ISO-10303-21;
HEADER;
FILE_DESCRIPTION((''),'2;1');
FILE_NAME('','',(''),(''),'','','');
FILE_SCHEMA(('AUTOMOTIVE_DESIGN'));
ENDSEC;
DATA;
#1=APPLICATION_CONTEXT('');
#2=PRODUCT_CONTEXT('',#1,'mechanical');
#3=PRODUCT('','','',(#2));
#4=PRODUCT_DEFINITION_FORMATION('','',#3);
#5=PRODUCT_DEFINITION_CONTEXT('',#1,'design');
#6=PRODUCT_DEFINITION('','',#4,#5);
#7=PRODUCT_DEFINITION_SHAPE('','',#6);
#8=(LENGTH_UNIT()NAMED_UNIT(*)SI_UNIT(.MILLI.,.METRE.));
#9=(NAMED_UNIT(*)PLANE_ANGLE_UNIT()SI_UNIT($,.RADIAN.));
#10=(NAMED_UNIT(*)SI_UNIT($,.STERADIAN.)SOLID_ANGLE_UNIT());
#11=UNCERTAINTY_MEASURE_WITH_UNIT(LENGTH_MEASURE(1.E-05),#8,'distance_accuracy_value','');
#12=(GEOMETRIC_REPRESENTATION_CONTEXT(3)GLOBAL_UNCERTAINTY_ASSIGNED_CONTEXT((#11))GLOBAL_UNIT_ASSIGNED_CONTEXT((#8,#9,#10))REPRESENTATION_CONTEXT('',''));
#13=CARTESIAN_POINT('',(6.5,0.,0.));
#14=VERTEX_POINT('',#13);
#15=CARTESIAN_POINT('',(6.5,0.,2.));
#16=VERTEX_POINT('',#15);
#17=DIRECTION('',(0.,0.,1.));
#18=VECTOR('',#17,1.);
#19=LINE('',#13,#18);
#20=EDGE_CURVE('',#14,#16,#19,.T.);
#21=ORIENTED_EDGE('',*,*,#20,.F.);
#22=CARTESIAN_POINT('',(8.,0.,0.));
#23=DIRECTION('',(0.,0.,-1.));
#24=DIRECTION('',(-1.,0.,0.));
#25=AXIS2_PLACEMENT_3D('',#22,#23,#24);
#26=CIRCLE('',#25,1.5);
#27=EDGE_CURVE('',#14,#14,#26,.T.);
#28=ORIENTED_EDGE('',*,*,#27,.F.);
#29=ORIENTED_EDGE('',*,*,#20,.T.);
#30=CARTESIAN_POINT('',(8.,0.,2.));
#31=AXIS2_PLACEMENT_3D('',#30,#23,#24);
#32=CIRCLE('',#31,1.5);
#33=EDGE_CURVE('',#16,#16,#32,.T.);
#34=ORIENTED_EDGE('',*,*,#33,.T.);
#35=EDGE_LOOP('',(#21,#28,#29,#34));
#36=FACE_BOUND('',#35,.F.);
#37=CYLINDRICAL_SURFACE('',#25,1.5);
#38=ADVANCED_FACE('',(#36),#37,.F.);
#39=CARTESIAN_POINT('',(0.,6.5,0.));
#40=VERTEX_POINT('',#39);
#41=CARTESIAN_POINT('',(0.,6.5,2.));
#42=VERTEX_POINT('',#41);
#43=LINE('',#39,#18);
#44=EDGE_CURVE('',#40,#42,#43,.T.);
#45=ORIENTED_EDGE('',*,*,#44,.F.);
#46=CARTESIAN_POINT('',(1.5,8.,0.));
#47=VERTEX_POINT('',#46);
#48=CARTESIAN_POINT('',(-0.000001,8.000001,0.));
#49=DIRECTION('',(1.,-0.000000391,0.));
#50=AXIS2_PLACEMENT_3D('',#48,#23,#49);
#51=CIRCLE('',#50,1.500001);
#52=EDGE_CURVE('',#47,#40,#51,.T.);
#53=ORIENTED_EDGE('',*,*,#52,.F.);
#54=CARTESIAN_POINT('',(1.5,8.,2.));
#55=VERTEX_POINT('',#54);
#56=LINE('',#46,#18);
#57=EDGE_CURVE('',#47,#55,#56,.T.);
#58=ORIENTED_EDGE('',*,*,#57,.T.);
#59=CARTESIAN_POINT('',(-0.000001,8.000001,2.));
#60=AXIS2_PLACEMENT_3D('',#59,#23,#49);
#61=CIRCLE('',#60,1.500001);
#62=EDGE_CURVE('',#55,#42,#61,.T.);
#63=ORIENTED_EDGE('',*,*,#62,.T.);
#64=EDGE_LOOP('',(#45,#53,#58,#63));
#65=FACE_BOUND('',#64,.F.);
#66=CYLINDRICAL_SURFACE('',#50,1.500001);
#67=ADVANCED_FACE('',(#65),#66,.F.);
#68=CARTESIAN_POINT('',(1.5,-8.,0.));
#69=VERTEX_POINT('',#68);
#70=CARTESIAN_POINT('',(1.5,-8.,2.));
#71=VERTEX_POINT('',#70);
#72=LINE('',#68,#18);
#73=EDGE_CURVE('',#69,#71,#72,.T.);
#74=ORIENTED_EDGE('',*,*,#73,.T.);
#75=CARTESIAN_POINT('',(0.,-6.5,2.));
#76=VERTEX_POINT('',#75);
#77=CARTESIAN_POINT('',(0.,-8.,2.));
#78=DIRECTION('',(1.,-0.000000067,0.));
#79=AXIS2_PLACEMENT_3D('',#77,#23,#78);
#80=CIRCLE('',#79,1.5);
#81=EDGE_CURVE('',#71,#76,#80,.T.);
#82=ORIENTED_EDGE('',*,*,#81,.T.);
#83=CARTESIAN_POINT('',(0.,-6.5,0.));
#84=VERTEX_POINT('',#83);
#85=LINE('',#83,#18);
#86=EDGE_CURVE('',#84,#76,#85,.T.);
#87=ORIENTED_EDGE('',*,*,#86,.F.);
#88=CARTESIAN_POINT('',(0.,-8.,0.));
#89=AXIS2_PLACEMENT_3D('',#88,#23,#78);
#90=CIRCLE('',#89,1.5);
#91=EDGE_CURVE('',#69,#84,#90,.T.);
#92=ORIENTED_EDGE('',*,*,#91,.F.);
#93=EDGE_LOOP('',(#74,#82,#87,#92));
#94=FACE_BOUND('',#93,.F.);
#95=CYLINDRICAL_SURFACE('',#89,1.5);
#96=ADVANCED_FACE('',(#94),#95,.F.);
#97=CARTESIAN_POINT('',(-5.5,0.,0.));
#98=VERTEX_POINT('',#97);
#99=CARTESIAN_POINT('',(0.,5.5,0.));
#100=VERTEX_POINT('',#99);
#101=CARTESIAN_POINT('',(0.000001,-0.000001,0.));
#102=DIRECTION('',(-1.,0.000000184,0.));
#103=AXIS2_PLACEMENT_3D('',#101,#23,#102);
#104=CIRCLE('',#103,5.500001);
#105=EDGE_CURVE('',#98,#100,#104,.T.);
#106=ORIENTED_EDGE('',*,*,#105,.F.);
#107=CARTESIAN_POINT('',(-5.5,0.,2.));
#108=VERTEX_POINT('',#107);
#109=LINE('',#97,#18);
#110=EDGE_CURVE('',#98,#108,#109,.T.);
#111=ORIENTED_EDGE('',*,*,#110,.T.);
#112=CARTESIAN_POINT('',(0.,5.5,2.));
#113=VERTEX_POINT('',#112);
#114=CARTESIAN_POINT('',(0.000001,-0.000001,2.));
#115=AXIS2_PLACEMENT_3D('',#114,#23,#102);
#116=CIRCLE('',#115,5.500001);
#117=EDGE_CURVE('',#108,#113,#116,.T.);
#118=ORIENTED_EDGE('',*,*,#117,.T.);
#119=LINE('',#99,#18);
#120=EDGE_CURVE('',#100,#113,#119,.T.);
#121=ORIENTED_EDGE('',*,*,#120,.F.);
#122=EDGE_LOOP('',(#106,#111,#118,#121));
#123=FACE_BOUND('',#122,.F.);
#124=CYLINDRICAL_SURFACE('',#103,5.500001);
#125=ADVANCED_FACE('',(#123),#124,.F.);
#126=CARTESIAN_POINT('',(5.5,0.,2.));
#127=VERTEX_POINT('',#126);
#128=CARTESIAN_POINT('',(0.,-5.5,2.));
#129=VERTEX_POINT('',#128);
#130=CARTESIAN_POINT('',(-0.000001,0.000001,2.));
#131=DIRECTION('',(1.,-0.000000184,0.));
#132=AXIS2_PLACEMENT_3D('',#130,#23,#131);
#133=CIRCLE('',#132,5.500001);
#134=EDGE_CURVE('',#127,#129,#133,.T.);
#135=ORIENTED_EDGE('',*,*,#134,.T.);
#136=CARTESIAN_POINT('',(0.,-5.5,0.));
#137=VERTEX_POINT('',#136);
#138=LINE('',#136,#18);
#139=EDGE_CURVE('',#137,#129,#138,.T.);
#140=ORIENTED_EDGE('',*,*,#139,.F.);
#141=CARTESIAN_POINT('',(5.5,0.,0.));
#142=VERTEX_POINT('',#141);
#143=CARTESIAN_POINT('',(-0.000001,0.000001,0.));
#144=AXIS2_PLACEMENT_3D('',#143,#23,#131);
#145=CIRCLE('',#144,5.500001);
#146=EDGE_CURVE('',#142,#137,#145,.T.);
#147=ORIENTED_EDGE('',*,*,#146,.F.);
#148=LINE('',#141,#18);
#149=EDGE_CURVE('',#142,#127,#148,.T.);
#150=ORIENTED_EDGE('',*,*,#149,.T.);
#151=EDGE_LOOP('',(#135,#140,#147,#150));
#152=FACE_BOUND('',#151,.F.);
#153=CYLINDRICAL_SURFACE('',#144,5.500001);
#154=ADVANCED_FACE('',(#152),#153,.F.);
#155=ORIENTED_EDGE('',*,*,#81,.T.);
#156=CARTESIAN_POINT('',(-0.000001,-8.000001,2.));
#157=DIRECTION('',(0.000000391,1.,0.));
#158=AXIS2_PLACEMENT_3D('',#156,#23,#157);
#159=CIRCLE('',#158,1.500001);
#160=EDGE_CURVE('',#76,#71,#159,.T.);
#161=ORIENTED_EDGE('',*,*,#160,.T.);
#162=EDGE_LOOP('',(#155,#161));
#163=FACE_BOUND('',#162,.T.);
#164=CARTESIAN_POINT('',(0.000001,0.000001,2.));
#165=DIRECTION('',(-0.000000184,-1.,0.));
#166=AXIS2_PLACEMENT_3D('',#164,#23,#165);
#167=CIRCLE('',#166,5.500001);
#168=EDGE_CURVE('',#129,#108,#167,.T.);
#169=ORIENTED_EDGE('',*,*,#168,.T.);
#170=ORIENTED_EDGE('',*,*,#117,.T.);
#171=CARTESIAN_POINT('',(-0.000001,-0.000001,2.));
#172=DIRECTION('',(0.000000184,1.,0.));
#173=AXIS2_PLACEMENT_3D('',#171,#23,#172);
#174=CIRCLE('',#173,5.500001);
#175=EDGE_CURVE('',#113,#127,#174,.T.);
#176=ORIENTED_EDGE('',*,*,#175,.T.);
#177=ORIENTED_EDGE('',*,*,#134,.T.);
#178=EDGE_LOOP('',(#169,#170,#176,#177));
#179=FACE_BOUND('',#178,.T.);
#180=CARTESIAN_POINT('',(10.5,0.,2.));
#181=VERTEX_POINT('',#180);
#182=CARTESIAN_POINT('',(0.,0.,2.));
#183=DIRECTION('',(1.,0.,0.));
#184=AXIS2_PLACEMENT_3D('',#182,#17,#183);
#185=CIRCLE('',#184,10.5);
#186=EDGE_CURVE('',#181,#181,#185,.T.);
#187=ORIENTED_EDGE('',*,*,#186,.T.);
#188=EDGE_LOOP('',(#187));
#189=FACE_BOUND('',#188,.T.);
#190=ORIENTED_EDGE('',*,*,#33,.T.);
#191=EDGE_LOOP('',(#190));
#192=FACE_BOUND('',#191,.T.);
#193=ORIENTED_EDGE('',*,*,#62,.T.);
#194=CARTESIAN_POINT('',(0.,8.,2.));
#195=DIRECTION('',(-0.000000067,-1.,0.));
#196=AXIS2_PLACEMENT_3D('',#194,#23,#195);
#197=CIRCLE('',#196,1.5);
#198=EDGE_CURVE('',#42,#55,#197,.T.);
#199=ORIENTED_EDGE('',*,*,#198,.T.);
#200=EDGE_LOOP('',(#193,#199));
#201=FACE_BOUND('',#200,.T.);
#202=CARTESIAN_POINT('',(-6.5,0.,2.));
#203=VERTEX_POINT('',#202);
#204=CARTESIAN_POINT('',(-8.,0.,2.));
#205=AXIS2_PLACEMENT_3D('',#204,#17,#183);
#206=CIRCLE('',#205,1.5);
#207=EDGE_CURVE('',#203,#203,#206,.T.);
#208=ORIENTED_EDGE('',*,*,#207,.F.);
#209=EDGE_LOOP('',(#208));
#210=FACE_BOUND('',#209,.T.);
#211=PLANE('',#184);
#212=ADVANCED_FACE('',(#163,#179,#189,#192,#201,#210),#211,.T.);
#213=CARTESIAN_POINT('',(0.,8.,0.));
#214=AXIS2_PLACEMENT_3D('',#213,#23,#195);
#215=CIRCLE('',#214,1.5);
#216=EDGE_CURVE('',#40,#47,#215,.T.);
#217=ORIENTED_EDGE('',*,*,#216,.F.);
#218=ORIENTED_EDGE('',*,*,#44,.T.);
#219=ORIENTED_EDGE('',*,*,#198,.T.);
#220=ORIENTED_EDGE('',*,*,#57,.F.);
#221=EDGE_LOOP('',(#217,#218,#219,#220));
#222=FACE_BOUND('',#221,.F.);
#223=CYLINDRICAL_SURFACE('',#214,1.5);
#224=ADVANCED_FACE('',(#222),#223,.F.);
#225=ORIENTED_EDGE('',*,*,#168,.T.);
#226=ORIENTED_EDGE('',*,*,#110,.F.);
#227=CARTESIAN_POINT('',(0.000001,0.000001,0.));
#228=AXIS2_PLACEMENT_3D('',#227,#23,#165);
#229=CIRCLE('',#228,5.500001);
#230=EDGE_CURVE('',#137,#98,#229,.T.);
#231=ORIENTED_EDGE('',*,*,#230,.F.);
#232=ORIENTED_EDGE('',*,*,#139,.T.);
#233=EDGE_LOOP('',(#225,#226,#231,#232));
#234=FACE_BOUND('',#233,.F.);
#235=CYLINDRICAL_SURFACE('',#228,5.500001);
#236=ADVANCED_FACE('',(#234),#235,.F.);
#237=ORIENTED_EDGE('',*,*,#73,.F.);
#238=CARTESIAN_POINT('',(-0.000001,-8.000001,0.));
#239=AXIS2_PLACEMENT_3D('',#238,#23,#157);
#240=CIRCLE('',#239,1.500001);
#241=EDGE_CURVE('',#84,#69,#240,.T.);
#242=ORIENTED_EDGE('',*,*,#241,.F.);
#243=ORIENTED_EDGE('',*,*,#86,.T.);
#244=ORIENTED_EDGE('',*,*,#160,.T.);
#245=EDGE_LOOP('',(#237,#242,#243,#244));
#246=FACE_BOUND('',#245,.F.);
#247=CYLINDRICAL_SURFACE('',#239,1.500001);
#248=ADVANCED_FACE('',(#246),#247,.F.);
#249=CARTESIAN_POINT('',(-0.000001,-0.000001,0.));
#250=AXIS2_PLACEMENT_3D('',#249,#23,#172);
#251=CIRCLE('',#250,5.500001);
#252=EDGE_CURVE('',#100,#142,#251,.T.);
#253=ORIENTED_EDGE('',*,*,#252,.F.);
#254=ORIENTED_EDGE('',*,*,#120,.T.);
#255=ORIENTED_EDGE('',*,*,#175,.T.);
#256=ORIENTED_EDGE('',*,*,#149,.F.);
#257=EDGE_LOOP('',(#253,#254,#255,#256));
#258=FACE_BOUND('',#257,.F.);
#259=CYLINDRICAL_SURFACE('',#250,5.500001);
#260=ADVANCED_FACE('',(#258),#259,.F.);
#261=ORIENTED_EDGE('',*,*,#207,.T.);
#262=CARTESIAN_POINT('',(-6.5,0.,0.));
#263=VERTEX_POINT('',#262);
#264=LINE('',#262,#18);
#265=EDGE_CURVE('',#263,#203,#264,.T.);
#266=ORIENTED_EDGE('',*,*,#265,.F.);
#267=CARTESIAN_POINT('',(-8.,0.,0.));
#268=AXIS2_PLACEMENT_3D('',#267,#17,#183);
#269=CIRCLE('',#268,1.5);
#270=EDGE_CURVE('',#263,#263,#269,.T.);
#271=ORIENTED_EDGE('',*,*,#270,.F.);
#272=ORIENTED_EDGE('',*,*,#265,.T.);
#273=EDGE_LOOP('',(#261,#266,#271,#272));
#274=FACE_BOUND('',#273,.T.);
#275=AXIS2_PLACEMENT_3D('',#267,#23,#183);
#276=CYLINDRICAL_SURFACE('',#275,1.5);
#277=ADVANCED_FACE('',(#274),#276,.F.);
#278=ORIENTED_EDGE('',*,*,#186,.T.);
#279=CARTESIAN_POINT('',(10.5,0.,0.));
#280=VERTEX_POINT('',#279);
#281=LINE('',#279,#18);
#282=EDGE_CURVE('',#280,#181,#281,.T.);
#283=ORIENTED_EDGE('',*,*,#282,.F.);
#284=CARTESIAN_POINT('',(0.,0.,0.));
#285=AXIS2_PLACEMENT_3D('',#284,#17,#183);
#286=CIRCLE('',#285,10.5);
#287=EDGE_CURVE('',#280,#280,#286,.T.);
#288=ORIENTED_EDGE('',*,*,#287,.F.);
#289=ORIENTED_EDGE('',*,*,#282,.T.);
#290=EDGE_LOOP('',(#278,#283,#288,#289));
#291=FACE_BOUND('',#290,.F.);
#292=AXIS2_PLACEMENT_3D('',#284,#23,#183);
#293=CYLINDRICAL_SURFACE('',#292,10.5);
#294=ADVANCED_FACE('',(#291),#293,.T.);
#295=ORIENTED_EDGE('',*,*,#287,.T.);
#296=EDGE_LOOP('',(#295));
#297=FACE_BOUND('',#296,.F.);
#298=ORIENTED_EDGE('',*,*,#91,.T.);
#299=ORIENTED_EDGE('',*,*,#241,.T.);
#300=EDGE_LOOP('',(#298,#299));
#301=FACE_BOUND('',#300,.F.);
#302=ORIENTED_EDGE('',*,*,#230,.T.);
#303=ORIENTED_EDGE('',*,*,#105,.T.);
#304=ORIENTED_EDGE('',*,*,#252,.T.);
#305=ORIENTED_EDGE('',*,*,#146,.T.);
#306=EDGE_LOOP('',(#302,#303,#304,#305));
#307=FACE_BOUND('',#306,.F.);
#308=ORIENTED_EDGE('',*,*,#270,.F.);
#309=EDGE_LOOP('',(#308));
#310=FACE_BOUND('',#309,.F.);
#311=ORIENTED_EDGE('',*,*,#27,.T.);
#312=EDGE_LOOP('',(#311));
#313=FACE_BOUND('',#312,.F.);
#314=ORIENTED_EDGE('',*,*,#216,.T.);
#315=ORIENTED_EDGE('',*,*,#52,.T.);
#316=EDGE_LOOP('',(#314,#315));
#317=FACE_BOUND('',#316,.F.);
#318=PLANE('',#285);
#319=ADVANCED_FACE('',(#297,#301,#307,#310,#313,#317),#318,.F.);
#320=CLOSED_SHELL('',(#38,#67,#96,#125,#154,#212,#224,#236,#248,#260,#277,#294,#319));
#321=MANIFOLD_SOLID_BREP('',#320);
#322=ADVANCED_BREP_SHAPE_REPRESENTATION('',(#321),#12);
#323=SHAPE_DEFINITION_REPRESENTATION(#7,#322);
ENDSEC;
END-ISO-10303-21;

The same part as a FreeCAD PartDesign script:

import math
import FreeCAD as App
import Part
import Sketcher
from FreeCAD import Vector
Q = App.Units.Quantity

doc = App.newDocument("Part")
body = doc.addObject("PartDesign::Body", "Body")

# Sketch on XY plane
sketch1 = body.newObject("Sketcher::SketchObject", "Sketch")
sketch1.AttachmentSupport = (doc.getObject("XY_Plane"), [""])
sketch1.MapMode = "FlatFace"
sketch1.addGeometry([
    Part.Circle(Vector(0, 0, 0), Vector(0, 0, 1), 10.5),  # 0
    Part.ArcOfCircle(Part.Circle(Vector(0, -8, 0), Vector(0, 0, 1), 1.5), math.radians(0), math.radians(90)),  # 1
    Part.ArcOfCircle(Part.Circle(Vector(0, -8, 0), Vector(0, 0, 1), 1.5), math.radians(90), math.radians(360)),  # 2
    Part.Circle(Vector(-8, 0, 0), Vector(0, 0, 1), 1.5),  # 3
    Part.ArcOfCircle(Part.Circle(Vector(0, 0, 0), Vector(0, 0, 1), 5.5), math.radians(90), math.radians(180)),  # 4
    Part.ArcOfCircle(Part.Circle(Vector(0, 0, 0), Vector(0, 0, 1), 5.5), math.radians(0), math.radians(90)),  # 5
    Part.ArcOfCircle(Part.Circle(Vector(0, 0, 0), Vector(0, 0, 1), 5.5), math.radians(-90), math.radians(0)),  # 6
    Part.ArcOfCircle(Part.Circle(Vector(0, 0, 0), Vector(0, 0, 1), 5.5), math.radians(-180), math.radians(-90)),  # 7
    Part.Circle(Vector(8, 0, 0), Vector(0, 0, 1), 1.5),  # 8
    Part.ArcOfCircle(Part.Circle(Vector(0, 8, 0), Vector(0, 0, 1), 1.5), math.radians(0), math.radians(270)),  # 9
    Part.ArcOfCircle(Part.Circle(Vector(0, 8, 0), Vector(0, 0, 1), 1.5), math.radians(-90), math.radians(0)),  # 10
], False)
sketch1.addConstraint([
    Sketcher.Constraint("Tangent", 1, 1, 2, 2),
    Sketcher.Constraint("Coincident", 2, 1, 1, 2),
    Sketcher.Constraint("Tangent", 4, 1, 5, 2),
    Sketcher.Constraint("Tangent", 5, 1, 6, 2),
    Sketcher.Constraint("Tangent", 6, 1, 7, 2),
    Sketcher.Constraint("Tangent", 7, 1, 4, 2),
    Sketcher.Constraint("Tangent", 9, 1, 10, 2),
    Sketcher.Constraint("Coincident", 10, 1, 9, 2),
    Sketcher.Constraint("Coincident", 0, 3, -1, 1),
    Sketcher.Constraint("Coincident", 4, 3, -1, 1),
    Sketcher.Constraint("Equal", 2, 3),
    Sketcher.Constraint("Equal", 4, 5),
    Sketcher.Constraint("Equal", 3, 8),
    Sketcher.Constraint("Equal", 8, 9),
    Sketcher.Constraint("Symmetric", 3, 3, 8, 3, -1, 1),
    Sketcher.Constraint("Symmetric", 1, 3, 9, 3, -1, 1),
    Sketcher.Constraint("Symmetric", 1, 1, 9, 1, -1),
    Sketcher.Constraint("PointOnObject", 3, 3, -1),
    Sketcher.Constraint("PointOnObject", 2, 1, -2),
    Sketcher.Constraint("PointOnObject", 4, 1, -2),
    Sketcher.Constraint("PointOnObject", 5, 1, -1),
    Sketcher.Constraint("PointOnObject", 6, 1, -2),
    Sketcher.Constraint("PointOnObject", 7, 1, -1),
    Sketcher.Constraint("PointOnObject", 10, 1, -2),
    Sketcher.Constraint("Horizontal", 2, 3, 1, 1),
    Sketcher.Constraint("Diameter", 0, Q("21 mm")),
    Sketcher.Constraint("Diameter", 3, Q("3 mm")),
    Sketcher.Constraint("Radius", 4, Q("5.500001 mm")),
    Sketcher.Constraint("DistanceY", 1, 3, -1, 1, Q("8.000001 mm")),
    Sketcher.Constraint("DistanceX", 3, 3, -1, 1, Q("8 mm")),
])
pad1 = body.newObject("PartDesign::Pad", "Pad")
pad1.Profile = sketch1
pad1.Length = 2

doc.recompute()
